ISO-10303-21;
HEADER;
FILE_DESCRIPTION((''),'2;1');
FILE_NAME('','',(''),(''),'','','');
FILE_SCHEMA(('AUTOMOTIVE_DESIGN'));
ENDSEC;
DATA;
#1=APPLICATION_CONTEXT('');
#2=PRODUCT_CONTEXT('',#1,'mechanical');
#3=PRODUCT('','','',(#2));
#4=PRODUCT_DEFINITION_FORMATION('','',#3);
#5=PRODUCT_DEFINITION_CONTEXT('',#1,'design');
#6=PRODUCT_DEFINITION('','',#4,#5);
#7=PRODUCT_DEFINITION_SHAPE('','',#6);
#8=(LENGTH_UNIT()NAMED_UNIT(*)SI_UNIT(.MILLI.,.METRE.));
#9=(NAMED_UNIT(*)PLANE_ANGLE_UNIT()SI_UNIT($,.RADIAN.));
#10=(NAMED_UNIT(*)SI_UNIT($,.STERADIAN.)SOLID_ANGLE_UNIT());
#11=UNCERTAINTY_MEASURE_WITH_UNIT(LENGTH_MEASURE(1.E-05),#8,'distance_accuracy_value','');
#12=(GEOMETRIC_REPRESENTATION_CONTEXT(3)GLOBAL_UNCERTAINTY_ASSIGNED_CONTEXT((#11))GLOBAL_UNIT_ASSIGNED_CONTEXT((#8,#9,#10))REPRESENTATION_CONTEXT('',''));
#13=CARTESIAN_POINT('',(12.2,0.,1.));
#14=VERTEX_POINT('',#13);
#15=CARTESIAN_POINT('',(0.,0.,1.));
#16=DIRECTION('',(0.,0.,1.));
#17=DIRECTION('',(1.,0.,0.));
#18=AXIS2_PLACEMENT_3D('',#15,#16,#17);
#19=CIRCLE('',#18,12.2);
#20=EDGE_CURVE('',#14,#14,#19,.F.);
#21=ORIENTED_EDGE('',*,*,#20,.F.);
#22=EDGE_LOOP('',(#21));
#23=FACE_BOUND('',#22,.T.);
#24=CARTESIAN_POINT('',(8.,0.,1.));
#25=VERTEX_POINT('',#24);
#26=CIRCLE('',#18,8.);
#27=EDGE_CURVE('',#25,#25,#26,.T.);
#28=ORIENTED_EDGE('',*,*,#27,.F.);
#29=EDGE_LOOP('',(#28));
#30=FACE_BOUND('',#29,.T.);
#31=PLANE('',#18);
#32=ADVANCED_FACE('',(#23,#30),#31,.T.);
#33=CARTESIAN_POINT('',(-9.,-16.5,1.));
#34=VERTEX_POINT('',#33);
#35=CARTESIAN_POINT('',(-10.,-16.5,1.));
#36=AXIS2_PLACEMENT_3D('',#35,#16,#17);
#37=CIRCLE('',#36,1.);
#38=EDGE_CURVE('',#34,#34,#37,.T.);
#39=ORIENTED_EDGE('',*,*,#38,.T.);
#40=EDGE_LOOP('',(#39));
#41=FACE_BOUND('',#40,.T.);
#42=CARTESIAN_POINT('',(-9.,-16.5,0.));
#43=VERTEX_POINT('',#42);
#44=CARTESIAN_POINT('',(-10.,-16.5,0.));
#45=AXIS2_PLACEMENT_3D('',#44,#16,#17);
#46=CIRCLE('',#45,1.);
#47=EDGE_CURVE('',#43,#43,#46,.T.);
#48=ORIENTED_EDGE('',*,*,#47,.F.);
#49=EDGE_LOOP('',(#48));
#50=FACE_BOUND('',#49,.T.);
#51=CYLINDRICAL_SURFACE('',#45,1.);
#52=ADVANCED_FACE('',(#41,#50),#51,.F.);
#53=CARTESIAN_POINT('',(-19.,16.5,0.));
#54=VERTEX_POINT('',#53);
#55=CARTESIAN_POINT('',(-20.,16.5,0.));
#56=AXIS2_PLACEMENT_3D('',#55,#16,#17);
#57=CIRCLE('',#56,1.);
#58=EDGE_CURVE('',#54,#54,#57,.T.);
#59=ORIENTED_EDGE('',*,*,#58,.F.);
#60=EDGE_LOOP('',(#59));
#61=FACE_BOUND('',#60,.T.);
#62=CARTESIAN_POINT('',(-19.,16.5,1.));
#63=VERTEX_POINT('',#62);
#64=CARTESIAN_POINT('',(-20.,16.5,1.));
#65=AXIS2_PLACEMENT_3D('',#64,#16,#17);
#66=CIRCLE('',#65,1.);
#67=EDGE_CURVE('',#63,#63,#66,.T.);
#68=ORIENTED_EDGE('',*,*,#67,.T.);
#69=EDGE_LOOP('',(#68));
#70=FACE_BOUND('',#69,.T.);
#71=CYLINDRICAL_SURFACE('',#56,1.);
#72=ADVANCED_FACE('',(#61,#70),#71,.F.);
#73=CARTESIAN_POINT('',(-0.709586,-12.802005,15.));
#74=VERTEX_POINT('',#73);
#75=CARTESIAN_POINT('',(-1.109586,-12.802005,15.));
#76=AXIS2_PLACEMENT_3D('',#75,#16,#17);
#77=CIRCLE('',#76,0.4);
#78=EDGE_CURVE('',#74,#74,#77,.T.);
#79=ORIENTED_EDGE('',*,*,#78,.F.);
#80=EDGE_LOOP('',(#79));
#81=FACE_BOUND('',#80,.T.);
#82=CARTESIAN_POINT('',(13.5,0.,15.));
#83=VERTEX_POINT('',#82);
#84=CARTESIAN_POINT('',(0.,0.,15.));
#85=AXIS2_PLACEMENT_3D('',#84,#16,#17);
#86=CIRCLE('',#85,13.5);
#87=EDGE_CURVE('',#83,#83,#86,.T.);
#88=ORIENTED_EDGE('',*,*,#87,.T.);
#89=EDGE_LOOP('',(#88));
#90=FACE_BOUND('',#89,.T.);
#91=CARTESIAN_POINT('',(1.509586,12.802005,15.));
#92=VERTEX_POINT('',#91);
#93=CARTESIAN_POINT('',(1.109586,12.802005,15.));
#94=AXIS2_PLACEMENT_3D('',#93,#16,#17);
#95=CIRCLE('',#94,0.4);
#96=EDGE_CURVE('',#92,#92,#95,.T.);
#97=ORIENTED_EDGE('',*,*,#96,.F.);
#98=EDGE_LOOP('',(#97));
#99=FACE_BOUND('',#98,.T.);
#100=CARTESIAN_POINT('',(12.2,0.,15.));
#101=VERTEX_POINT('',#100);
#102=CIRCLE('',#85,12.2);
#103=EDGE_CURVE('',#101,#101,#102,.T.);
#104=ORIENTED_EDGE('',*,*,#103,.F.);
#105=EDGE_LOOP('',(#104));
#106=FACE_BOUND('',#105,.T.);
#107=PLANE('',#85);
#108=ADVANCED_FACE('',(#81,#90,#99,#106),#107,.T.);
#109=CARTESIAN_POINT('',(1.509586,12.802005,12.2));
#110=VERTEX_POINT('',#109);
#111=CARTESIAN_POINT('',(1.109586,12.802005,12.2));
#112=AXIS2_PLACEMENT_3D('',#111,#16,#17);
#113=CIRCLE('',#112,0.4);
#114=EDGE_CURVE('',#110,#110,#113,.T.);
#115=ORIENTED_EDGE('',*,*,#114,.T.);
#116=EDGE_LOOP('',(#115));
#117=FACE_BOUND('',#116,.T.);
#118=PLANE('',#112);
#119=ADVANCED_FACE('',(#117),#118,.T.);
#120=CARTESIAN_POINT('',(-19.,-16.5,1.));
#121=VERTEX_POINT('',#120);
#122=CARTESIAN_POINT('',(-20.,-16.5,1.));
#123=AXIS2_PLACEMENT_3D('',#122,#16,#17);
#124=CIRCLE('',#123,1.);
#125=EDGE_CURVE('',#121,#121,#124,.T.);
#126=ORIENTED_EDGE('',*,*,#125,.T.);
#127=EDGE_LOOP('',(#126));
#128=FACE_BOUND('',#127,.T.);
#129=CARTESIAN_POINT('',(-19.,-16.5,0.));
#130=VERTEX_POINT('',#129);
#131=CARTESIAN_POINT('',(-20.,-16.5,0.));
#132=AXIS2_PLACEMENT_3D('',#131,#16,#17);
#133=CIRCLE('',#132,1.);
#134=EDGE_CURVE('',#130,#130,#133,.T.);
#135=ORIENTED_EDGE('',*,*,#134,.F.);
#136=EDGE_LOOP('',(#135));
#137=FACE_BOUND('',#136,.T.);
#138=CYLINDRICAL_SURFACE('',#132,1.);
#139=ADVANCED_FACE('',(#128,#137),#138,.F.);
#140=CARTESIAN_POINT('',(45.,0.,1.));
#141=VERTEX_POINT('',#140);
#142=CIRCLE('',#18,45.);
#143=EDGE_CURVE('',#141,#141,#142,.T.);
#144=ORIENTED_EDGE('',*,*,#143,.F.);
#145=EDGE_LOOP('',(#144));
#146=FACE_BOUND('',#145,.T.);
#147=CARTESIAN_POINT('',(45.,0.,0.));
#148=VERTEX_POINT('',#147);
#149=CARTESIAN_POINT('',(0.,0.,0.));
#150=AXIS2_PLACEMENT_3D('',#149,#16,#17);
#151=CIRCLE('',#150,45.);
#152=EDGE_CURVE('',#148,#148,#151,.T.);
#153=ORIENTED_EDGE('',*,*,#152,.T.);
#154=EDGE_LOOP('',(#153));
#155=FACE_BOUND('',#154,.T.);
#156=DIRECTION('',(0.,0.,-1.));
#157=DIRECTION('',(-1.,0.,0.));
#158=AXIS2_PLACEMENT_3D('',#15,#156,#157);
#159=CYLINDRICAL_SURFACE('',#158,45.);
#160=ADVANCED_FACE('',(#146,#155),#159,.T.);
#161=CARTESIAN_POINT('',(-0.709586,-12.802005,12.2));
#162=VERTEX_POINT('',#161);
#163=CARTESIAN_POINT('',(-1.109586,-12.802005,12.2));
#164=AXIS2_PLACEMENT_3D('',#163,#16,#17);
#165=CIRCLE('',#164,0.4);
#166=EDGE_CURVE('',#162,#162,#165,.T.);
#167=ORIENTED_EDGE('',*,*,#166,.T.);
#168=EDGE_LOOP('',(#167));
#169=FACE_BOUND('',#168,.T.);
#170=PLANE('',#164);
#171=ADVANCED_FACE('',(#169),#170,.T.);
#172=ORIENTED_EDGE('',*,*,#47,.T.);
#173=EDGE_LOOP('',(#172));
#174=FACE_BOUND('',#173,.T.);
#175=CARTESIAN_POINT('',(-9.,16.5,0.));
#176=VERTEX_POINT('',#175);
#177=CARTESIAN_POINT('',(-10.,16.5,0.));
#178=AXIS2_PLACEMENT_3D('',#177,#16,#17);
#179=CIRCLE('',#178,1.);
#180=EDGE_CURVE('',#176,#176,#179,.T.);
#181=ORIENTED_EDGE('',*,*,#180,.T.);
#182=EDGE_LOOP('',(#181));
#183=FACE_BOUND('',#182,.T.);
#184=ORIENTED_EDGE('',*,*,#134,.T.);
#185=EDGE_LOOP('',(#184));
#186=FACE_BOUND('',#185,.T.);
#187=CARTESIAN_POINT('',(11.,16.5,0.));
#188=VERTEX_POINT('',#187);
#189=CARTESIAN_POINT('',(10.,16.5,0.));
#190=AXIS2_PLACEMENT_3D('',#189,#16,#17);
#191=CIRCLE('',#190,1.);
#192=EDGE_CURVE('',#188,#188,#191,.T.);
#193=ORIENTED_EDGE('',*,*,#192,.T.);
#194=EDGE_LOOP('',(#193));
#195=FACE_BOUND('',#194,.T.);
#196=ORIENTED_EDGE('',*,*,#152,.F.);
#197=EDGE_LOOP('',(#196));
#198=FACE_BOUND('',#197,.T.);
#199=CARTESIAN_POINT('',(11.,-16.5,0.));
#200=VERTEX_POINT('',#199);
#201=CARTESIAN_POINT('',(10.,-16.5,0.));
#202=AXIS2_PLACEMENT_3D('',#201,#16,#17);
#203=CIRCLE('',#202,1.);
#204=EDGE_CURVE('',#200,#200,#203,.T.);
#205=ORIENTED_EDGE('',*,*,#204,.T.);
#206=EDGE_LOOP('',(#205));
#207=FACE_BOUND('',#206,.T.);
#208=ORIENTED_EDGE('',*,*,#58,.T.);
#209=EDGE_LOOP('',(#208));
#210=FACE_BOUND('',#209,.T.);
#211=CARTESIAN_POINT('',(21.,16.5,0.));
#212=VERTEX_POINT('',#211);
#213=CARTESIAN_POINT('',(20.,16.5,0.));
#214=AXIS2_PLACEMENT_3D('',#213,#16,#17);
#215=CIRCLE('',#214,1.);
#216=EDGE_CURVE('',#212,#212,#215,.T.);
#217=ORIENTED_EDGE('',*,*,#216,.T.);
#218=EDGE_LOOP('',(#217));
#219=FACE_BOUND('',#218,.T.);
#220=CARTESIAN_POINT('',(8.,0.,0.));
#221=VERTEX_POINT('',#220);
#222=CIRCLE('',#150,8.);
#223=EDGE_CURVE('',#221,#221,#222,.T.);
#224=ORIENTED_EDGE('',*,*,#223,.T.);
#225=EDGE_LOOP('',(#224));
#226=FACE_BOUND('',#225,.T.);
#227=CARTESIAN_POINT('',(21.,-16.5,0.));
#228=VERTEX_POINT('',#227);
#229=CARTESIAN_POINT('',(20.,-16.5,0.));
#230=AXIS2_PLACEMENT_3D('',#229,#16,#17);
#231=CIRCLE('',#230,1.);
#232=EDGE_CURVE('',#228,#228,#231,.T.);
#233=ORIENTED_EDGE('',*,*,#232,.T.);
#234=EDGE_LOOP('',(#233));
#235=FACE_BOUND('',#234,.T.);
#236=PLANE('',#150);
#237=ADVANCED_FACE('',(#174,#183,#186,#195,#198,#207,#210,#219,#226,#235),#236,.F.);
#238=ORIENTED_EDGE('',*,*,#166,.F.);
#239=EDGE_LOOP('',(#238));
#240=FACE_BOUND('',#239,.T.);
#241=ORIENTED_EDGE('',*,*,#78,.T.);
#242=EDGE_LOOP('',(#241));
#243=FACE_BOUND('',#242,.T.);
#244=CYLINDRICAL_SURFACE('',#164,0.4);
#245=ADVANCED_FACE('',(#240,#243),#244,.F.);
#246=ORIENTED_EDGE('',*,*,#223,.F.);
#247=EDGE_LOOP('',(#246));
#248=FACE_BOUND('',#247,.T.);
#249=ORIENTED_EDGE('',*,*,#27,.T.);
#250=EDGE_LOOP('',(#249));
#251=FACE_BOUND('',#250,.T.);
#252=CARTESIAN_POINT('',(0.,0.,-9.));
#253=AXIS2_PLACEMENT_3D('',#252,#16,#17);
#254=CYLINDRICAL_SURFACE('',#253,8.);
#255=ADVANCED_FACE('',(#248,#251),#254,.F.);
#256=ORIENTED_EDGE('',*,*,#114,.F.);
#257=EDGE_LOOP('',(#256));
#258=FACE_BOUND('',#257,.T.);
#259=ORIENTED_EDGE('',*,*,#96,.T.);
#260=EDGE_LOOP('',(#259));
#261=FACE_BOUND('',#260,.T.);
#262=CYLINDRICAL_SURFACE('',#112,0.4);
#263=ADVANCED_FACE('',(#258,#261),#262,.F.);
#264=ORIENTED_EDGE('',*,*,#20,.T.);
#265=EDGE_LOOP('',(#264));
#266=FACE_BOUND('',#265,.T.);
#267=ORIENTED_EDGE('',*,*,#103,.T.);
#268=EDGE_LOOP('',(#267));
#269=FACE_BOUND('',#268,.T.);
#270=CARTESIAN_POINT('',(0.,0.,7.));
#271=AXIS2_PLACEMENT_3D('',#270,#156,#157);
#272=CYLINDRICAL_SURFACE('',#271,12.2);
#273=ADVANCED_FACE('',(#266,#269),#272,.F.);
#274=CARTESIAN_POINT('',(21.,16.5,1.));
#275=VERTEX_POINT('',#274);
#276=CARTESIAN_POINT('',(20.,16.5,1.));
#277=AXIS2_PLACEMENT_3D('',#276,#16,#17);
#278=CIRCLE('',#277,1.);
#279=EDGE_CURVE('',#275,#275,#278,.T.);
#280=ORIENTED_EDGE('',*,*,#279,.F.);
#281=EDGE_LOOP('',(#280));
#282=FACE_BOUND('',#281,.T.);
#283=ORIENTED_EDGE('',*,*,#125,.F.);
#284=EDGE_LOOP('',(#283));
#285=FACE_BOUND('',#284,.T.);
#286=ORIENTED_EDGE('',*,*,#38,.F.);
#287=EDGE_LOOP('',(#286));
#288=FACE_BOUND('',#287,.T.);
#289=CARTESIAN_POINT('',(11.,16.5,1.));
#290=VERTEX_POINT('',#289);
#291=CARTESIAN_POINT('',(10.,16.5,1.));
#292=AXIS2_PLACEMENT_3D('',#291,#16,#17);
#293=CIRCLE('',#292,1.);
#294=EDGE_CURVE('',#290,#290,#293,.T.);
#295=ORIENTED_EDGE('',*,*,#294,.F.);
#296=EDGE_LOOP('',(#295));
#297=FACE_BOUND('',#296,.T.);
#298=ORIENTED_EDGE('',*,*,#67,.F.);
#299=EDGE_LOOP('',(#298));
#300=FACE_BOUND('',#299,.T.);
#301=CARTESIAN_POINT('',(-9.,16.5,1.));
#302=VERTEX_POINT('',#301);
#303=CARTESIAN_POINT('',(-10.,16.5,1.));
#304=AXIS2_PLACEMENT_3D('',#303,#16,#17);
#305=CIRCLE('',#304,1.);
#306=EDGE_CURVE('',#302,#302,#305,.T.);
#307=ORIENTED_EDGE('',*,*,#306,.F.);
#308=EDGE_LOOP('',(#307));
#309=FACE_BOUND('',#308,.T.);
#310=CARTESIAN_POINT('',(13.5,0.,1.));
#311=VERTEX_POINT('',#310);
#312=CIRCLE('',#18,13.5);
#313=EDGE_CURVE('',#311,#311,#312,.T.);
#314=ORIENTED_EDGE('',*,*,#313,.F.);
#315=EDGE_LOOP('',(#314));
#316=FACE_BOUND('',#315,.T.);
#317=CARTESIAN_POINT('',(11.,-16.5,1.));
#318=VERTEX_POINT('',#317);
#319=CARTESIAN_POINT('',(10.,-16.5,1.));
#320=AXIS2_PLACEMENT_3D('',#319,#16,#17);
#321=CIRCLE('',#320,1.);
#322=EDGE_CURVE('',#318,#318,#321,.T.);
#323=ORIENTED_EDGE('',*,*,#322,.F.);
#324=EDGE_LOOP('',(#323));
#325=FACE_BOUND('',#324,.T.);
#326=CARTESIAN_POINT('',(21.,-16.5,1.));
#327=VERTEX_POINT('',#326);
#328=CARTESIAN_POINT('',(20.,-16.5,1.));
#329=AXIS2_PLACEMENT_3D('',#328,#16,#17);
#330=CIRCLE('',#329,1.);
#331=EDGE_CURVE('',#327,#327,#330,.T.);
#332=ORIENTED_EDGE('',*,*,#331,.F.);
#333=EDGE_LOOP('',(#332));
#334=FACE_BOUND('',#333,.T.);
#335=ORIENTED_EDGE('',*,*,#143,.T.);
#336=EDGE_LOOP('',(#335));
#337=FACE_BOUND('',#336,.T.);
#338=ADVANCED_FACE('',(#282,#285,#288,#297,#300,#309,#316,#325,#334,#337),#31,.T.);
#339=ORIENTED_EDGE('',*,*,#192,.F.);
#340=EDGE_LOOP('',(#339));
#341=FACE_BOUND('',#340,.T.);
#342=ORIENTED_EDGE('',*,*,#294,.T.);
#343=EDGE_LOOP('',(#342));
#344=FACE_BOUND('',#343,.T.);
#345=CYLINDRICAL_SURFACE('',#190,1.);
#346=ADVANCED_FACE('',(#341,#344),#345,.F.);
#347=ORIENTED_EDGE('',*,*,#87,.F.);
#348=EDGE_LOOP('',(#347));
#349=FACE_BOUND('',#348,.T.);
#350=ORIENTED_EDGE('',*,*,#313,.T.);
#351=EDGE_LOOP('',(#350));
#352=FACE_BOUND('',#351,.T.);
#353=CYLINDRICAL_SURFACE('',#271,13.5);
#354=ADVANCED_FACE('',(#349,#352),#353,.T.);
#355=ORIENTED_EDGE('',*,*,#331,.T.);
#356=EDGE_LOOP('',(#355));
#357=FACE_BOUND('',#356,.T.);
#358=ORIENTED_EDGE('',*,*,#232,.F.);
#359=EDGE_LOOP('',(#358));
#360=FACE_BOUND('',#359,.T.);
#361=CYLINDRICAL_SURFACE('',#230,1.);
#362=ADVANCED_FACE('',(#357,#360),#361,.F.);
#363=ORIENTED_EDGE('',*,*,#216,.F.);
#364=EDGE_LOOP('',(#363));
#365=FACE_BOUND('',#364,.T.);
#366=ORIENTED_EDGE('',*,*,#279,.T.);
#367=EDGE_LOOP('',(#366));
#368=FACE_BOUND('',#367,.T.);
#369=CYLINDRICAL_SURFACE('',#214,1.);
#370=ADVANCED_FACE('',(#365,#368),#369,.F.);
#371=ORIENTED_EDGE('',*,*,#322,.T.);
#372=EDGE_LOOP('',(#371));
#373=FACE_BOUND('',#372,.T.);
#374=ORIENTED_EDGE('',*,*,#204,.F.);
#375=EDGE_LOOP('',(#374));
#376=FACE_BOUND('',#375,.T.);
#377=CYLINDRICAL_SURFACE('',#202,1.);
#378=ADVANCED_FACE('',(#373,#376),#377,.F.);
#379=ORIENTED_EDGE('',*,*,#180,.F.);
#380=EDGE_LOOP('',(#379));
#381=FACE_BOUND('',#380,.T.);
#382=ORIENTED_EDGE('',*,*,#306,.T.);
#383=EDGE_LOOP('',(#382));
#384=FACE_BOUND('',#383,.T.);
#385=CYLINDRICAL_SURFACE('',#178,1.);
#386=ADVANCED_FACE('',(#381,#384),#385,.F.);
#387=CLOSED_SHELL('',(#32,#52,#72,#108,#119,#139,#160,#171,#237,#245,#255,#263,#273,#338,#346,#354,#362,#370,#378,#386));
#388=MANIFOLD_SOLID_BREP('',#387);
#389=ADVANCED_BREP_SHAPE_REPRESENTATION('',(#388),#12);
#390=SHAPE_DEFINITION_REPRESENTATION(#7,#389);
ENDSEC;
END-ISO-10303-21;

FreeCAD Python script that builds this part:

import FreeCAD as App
import Part
import Sketcher

V = App.Vector
Q = App.Units.Quantity

doc = App.newDocument("Part")
params = doc.addObject("Spreadsheet::Sheet", "Params")
for row, (alias, value) in enumerate([
    ("sketch1_diameter", "90 mm"),
    ("pad1_length", "1 mm"),
    ("sketch2_diameter", "2 mm"),
    ("sketch3_diameter", "27 mm"),
    ("sketch3_diameter2", "24.4 mm"),
    ("pad2_length", "6 mm"),
    ("sketch4_diameter", "8 mm"),
    ("sketch5_diameter", "16 mm"),
    ("pocket3_length", "10 mm"),
    ("sketch6_diameter", "27 mm"),
    ("sketch6_diameter2", "24.4 mm"),
    ("pad3_length", "8 mm"),
    ("sketch7_diameter", "0.8 mm"),
    ("pocket4_length", "2.8 mm"),
], start=1):
    params.set(f"A{row}", alias)
    params.set(f"B{row}", "=" + value)
    params.setAlias(f"B{row}", alias)

body = doc.addObject("PartDesign::Body", "Body")

# Sketch on XY plane
sketch1 = body.newObject("Sketcher::SketchObject", "Sketch")
sketch1.AttachmentSupport = (doc.getObject("XY_Plane"), [""])
sketch1.MapMode = "FlatFace"
sketch1.addGeometry(Part.Circle(V(0, 0, 0), V(0, 0, 1), 45), False)
sketch1.addConstraint(Sketcher.Constraint("Coincident", 0, 3, -1, 1))
sketch1.addConstraint(Sketcher.Constraint("Diameter", 0, Q("90 mm")))
sketch1.setExpression("Constraints[1]", "Params.sketch1_diameter")
pad1 = body.newObject("PartDesign::Pad", "Pad")
pad1.Profile = sketch1
pad1.setExpression("Length", "Params.pad1_length")

# Sketch on XY plane
sketch2 = body.newObject("Sketcher::SketchObject", "Sketch001")
sketch2.AttachmentSupport = (doc.getObject("XY_Plane"), [""])
sketch2.MapMode = "FlatFace"
sketch2.AttachmentOffset = App.Placement(V(0, 0, 1), App.Rotation())
sketch2.addGeometry(Part.Circle(V(20, -16.5, 0), V(0, 0, 1), 1), False)
sketch2.addGeometry(Part.Circle(V(20, 16.5, 0), V(0, 0, 1), 1), False)
sketch2.addGeometry(Part.Circle(V(-20, 16.5, 0), V(0, 0, 1), 1), False)
sketch2.addGeometry(Part.Circle(V(-20, -16.5, 0), V(0, 0, 1), 1), False)
sketch2.addGeometry(Part.Circle(V(10, -16.5, 0), V(0, 0, 1), 1), False)
sketch2.addGeometry(Part.Circle(V(10, 16.5, 0), V(0, 0, 1), 1), False)
sketch2.addGeometry(Part.Circle(V(-10, 16.5, 0), V(0, 0, 1), 1), False)
sketch2.addGeometry(Part.Circle(V(-10, -16.5, 0), V(0, 0, 1), 1), False)
sketch2.addConstraint(Sketcher.Constraint("Equal", 0, 1))
sketch2.addConstraint(Sketcher.Constraint("Equal", 1, 2))
sketch2.addConstraint(Sketcher.Constraint("Equal", 2, 3))
sketch2.addConstraint(Sketcher.Constraint("Equal", 3, 4))
sketch2.addConstraint(Sketcher.Constraint("Equal", 4, 5))
sketch2.addConstraint(Sketcher.Constraint("Equal", 5, 6))
sketch2.addConstraint(Sketcher.Constraint("Equal", 6, 7))
sketch2.addConstraint(Sketcher.Constraint("Symmetric", 0, 3, 2, 3, -1, 1))
sketch2.addConstraint(Sketcher.Constraint("Symmetric", 1, 3, 3, 3, -1, 1))
sketch2.addConstraint(Sketcher.Constraint("Symmetric", 4, 3, 6, 3, -1, 1))
sketch2.addConstraint(Sketcher.Constraint("Symmetric", 5, 3, 7, 3, -1, 1))
sketch2.addConstraint(Sketcher.Constraint("Symmetric", 1, 3, 2, 3, -2))
sketch2.addConstraint(Sketcher.Constraint("Symmetric", 5, 3, 6, 3, -2))
sketch2.addConstraint(Sketcher.Constraint("Horizontal", 3, 3, 4, 3))
sketch2.addConstraint(Sketcher.Constraint("Diameter", 0, Q("2 mm")))
sketch2.addConstraint(Sketcher.Constraint("DistanceX", -1, 1, 0, 3, Q("20 mm")))
sketch2.addConstraint(Sketcher.Constraint("DistanceX", -1, 1, 4, 3, Q("10 mm")))
sketch2.addConstraint(Sketcher.Constraint("DistanceY", 0, 3, 1, 3, Q("33 mm")))
sketch2.setExpression("Constraints[14]", "Params.sketch2_diameter")
pocket1 = body.newObject("PartDesign::Pocket", "Pocket")
pocket1.Profile = sketch2
pocket1.Type = "ThroughAll"

# Sketch on XY plane
sketch3 = body.newObject("Sketcher::SketchObject", "Sketch002")
sketch3.AttachmentSupport = (doc.getObject("XY_Plane"), [""])
sketch3.MapMode = "FlatFace"
sketch3.AttachmentOffset = App.Placement(V(0, 0, 1), App.Rotation())
sketch3.addGeometry(Part.Circle(V(0, 0, 0), V(0, 0, 1), 14), False)
sketch3.addGeometry(Part.Circle(V(0, 0, 0), V(0, 0, 1), 12), False)
sketch3.addConstraint(Sketcher.Constraint("Coincident", 0, 3, -1, 1))
sketch3.addConstraint(Sketcher.Constraint("Coincident", 1, 3, -1, 1))
sketch3.addConstraint(Sketcher.Constraint("Diameter", 0, Q("27 mm")))
sketch3.addConstraint(Sketcher.Constraint("Diameter", 1, Q("24.4 mm")))
sketch3.setExpression("Constraints[2]", "Params.sketch3_diameter")
sketch3.setExpression("Constraints[3]", "Params.sketch3_diameter2")
pad2 = body.newObject("PartDesign::Pad", "Pad001")
pad2.Profile = sketch3
pad2.setExpression("Length", "Params.pad2_length")

# Sketch on XY plane
sketch4 = body.newObject("Sketcher::SketchObject", "Sketch003")
sketch4.AttachmentSupport = (doc.getObject("XY_Plane"), [""])
sketch4.MapMode = "FlatFace"
sketch4.AttachmentOffset = App.Placement(V(0, 0, 1), App.Rotation())
sketch4.addGeometry(Part.Circle(V(0, 0, 0), V(0, 0, 1), 4), False)
sketch4.addConstraint(Sketcher.Constraint("Coincident", 0, 3, -1, 1))
sketch4.addConstraint(Sketcher.Constraint("Diameter", 0, Q("8 mm")))
sketch4.setExpression("Constraints[1]", "Params.sketch4_diameter")
pocket2 = body.newObject("PartDesign::Pocket", "Pocket001")
pocket2.Profile = sketch4
pocket2.Type = "ThroughAll"

# Sketch on XY plane
sketch5 = body.newObject("Sketcher::SketchObject", "Sketch004")
sketch5.AttachmentSupport = (doc.getObject("XY_Plane"), [""])
sketch5.MapMode = "FlatFace"
sketch5.AttachmentOffset = App.Placement(V(0, 0, 1), App.Rotation())
sketch5.addGeometry(Part.Circle(V(0, 0, 0), V(0, 0, 1), 8), False)
sketch5.addConstraint(Sketcher.Constraint("Coincident", 0, 3, -1, 1))
sketch5.addConstraint(Sketcher.Constraint("Diameter", 0, Q("16 mm")))
sketch5.setExpression("Constraints[1]", "Params.sketch5_diameter")
pocket3 = body.newObject("PartDesign::Pocket", "Pocket002")
pocket3.Profile = sketch5
pocket3.setExpression("Length", "Params.pocket3_length")

# Sketch on XY plane
sketch6 = body.newObject("Sketcher::SketchObject", "Sketch005")
sketch6.AttachmentSupport = (doc.getObject("XY_Plane"), [""])
sketch6.MapMode = "FlatFace"
sketch6.AttachmentOffset = App.Placement(V(0, 0, 7), App.Rotation())
sketch6.addGeometry(Part.Circle(V(0, 0, 0), V(0, 0, 1), 14), False)
sketch6.addGeometry(Part.Circle(V(0, 0, 0), V(0, 0, 1), 12), False)
sketch6.addConstraint(Sketcher.Constraint("Coincident", 0, 3, -1, 1))
sketch6.addConstraint(Sketcher.Constraint("Coincident", 1, 3, -1, 1))
sketch6.addConstraint(Sketcher.Constraint("Diameter", 0, Q("27 mm")))
sketch6.addConstraint(Sketcher.Constraint("Diameter", 1, Q("24.4 mm")))
sketch6.setExpression("Constraints[2]", "Params.sketch6_diameter")
sketch6.setExpression("Constraints[3]", "Params.sketch6_diameter2")
pad3 = body.newObject("PartDesign::Pad", "Pad002")
pad3.Profile = sketch6
pad3.setExpression("Length", "Params.pad3_length")

# Sketch on XY plane
sketch7 = body.newObject("Sketcher::SketchObject", "Sketch006")
sketch7.AttachmentSupport = (doc.getObject("XY_Plane"), [""])
sketch7.MapMode = "FlatFace"
sketch7.AttachmentOffset = App.Placement(V(0, 0, 15), App.Rotation())
sketch7.addGeometry(Part.Circle(V(1.11, 12.8, 0), V(0, 0, 1), 0.4), False)
sketch7.addGeometry(Part.Circle(V(-1.11, -12.8, 0), V(0, 0, 1), 0.4), False)
sketch7.addConstraint(Sketcher.Constraint("Equal", 0, 1))
sketch7.addConstraint(Sketcher.Constraint("Symmetric", 0, 3, 1, 3, -1, 1))
sketch7.addConstraint(Sketcher.Constraint("Diameter", 0, Q("0.8 mm")))
sketch7.addConstraint(Sketcher.Constraint("DistanceX", 1, 3, 0, 3, Q("2.219171 mm")))
sketch7.addConstraint(Sketcher.Constraint("DistanceY", 1, 3, 0, 3, Q("25.604009 mm")))
sketch7.setExpression("Constraints[2]", "Params.sketch7_diameter")
pocket4 = body.newObject("PartDesign::Pocket", "Pocket003")
pocket4.Profile = sketch7
pocket4.setExpression("Length", "Params.pocket4_length")

doc.recompute()
